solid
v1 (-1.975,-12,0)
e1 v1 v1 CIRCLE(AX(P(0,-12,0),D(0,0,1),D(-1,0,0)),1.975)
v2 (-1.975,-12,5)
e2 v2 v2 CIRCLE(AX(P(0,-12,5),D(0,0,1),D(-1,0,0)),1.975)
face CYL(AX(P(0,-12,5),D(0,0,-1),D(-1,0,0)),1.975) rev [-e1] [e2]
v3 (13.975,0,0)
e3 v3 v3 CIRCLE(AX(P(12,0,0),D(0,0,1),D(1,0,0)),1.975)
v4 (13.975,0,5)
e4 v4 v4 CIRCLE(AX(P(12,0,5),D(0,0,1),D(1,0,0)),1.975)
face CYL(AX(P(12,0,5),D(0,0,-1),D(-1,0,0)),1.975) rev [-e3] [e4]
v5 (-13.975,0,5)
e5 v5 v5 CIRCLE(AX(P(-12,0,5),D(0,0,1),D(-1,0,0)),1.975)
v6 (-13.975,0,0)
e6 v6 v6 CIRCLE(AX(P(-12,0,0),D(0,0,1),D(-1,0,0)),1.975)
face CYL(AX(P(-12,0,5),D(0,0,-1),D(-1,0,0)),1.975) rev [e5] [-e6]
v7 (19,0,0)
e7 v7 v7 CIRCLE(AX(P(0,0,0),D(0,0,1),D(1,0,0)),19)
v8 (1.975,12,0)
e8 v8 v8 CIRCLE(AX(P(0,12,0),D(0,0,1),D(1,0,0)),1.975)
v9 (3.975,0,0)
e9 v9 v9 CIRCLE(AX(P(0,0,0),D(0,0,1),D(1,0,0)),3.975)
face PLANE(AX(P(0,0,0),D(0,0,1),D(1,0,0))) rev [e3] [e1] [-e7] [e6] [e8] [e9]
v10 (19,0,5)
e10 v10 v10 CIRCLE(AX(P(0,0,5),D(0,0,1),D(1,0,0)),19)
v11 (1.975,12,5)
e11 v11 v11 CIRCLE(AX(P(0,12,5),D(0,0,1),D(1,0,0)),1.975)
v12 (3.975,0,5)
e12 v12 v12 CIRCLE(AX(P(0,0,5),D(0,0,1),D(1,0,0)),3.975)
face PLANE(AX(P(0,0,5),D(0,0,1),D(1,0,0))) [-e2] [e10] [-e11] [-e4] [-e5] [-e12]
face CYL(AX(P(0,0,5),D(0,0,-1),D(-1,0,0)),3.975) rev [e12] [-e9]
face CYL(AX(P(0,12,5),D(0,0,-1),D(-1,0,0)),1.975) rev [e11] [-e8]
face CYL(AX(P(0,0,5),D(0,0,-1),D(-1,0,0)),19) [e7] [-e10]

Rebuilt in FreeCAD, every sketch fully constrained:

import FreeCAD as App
import Part
import Sketcher
from FreeCAD import Vector

doc = App.newDocument("Part")
body = doc.addObject("PartDesign::Body", "Body")

# Sketch on XY plane
sketch1 = body.newObject("Sketcher::SketchObject", "Sketch")
sketch1.AttachmentSupport = (doc.getObject("XY_Plane"), [""])
sketch1.MapMode = "FlatFace"
sketch1.addGeometry([
    Part.Circle(Vector(0, 0, 0), Vector(0, 0, 1), 19),  # 0
    Part.Circle(Vector(0, -12, 0), Vector(0, 0, 1), 2),  # 1
    Part.Circle(Vector(-12, 0, 0), Vector(0, 0, 1), 2),  # 2
    Part.Circle(Vector(0, 0, 0), Vector(0, 0, 1), 4),  # 3
    Part.Circle(Vector(12, 0, 0), Vector(0, 0, 1), 2),  # 4
    Part.Circle(Vector(0, 12, 0), Vector(0, 0, 1), 2),  # 5
], False)
sketch1.addConstraint([
    Sketcher.Constraint("Coincident", 0, 3, -1, 1),
    Sketcher.Constraint("Coincident", 3, 3, -1, 1),
    Sketcher.Constraint("Equal", 1, 2),
    Sketcher.Constraint("Equal", 2, 4),
    Sketcher.Constraint("Equal", 4, 5),
    Sketcher.Constraint("Symmetric", 2, 3, 4, 3, -1, 1),
    Sketcher.Constraint("Symmetric", 1, 3, 5, 3, -1, 1),
    Sketcher.Constraint("PointOnObject", 1, 3, -2),
    Sketcher.Constraint("PointOnObject", 2, 3, -1),
    Sketcher.Constraint("Diameter", 0, 38.0),
    Sketcher.Constraint("Diameter", 1, 3.95),
    Sketcher.Constraint("Diameter", 3, 7.95),
    Sketcher.Constraint("DistanceY", 1, 3, -1, 1, 12.0),
    Sketcher.Constraint("DistanceX", 2, 3, -1, 1, 12.0),
])
pad1 = body.newObject("PartDesign::Pad", "Pad")
pad1.Profile = sketch1
pad1.Length = 5

doc.recompute()
